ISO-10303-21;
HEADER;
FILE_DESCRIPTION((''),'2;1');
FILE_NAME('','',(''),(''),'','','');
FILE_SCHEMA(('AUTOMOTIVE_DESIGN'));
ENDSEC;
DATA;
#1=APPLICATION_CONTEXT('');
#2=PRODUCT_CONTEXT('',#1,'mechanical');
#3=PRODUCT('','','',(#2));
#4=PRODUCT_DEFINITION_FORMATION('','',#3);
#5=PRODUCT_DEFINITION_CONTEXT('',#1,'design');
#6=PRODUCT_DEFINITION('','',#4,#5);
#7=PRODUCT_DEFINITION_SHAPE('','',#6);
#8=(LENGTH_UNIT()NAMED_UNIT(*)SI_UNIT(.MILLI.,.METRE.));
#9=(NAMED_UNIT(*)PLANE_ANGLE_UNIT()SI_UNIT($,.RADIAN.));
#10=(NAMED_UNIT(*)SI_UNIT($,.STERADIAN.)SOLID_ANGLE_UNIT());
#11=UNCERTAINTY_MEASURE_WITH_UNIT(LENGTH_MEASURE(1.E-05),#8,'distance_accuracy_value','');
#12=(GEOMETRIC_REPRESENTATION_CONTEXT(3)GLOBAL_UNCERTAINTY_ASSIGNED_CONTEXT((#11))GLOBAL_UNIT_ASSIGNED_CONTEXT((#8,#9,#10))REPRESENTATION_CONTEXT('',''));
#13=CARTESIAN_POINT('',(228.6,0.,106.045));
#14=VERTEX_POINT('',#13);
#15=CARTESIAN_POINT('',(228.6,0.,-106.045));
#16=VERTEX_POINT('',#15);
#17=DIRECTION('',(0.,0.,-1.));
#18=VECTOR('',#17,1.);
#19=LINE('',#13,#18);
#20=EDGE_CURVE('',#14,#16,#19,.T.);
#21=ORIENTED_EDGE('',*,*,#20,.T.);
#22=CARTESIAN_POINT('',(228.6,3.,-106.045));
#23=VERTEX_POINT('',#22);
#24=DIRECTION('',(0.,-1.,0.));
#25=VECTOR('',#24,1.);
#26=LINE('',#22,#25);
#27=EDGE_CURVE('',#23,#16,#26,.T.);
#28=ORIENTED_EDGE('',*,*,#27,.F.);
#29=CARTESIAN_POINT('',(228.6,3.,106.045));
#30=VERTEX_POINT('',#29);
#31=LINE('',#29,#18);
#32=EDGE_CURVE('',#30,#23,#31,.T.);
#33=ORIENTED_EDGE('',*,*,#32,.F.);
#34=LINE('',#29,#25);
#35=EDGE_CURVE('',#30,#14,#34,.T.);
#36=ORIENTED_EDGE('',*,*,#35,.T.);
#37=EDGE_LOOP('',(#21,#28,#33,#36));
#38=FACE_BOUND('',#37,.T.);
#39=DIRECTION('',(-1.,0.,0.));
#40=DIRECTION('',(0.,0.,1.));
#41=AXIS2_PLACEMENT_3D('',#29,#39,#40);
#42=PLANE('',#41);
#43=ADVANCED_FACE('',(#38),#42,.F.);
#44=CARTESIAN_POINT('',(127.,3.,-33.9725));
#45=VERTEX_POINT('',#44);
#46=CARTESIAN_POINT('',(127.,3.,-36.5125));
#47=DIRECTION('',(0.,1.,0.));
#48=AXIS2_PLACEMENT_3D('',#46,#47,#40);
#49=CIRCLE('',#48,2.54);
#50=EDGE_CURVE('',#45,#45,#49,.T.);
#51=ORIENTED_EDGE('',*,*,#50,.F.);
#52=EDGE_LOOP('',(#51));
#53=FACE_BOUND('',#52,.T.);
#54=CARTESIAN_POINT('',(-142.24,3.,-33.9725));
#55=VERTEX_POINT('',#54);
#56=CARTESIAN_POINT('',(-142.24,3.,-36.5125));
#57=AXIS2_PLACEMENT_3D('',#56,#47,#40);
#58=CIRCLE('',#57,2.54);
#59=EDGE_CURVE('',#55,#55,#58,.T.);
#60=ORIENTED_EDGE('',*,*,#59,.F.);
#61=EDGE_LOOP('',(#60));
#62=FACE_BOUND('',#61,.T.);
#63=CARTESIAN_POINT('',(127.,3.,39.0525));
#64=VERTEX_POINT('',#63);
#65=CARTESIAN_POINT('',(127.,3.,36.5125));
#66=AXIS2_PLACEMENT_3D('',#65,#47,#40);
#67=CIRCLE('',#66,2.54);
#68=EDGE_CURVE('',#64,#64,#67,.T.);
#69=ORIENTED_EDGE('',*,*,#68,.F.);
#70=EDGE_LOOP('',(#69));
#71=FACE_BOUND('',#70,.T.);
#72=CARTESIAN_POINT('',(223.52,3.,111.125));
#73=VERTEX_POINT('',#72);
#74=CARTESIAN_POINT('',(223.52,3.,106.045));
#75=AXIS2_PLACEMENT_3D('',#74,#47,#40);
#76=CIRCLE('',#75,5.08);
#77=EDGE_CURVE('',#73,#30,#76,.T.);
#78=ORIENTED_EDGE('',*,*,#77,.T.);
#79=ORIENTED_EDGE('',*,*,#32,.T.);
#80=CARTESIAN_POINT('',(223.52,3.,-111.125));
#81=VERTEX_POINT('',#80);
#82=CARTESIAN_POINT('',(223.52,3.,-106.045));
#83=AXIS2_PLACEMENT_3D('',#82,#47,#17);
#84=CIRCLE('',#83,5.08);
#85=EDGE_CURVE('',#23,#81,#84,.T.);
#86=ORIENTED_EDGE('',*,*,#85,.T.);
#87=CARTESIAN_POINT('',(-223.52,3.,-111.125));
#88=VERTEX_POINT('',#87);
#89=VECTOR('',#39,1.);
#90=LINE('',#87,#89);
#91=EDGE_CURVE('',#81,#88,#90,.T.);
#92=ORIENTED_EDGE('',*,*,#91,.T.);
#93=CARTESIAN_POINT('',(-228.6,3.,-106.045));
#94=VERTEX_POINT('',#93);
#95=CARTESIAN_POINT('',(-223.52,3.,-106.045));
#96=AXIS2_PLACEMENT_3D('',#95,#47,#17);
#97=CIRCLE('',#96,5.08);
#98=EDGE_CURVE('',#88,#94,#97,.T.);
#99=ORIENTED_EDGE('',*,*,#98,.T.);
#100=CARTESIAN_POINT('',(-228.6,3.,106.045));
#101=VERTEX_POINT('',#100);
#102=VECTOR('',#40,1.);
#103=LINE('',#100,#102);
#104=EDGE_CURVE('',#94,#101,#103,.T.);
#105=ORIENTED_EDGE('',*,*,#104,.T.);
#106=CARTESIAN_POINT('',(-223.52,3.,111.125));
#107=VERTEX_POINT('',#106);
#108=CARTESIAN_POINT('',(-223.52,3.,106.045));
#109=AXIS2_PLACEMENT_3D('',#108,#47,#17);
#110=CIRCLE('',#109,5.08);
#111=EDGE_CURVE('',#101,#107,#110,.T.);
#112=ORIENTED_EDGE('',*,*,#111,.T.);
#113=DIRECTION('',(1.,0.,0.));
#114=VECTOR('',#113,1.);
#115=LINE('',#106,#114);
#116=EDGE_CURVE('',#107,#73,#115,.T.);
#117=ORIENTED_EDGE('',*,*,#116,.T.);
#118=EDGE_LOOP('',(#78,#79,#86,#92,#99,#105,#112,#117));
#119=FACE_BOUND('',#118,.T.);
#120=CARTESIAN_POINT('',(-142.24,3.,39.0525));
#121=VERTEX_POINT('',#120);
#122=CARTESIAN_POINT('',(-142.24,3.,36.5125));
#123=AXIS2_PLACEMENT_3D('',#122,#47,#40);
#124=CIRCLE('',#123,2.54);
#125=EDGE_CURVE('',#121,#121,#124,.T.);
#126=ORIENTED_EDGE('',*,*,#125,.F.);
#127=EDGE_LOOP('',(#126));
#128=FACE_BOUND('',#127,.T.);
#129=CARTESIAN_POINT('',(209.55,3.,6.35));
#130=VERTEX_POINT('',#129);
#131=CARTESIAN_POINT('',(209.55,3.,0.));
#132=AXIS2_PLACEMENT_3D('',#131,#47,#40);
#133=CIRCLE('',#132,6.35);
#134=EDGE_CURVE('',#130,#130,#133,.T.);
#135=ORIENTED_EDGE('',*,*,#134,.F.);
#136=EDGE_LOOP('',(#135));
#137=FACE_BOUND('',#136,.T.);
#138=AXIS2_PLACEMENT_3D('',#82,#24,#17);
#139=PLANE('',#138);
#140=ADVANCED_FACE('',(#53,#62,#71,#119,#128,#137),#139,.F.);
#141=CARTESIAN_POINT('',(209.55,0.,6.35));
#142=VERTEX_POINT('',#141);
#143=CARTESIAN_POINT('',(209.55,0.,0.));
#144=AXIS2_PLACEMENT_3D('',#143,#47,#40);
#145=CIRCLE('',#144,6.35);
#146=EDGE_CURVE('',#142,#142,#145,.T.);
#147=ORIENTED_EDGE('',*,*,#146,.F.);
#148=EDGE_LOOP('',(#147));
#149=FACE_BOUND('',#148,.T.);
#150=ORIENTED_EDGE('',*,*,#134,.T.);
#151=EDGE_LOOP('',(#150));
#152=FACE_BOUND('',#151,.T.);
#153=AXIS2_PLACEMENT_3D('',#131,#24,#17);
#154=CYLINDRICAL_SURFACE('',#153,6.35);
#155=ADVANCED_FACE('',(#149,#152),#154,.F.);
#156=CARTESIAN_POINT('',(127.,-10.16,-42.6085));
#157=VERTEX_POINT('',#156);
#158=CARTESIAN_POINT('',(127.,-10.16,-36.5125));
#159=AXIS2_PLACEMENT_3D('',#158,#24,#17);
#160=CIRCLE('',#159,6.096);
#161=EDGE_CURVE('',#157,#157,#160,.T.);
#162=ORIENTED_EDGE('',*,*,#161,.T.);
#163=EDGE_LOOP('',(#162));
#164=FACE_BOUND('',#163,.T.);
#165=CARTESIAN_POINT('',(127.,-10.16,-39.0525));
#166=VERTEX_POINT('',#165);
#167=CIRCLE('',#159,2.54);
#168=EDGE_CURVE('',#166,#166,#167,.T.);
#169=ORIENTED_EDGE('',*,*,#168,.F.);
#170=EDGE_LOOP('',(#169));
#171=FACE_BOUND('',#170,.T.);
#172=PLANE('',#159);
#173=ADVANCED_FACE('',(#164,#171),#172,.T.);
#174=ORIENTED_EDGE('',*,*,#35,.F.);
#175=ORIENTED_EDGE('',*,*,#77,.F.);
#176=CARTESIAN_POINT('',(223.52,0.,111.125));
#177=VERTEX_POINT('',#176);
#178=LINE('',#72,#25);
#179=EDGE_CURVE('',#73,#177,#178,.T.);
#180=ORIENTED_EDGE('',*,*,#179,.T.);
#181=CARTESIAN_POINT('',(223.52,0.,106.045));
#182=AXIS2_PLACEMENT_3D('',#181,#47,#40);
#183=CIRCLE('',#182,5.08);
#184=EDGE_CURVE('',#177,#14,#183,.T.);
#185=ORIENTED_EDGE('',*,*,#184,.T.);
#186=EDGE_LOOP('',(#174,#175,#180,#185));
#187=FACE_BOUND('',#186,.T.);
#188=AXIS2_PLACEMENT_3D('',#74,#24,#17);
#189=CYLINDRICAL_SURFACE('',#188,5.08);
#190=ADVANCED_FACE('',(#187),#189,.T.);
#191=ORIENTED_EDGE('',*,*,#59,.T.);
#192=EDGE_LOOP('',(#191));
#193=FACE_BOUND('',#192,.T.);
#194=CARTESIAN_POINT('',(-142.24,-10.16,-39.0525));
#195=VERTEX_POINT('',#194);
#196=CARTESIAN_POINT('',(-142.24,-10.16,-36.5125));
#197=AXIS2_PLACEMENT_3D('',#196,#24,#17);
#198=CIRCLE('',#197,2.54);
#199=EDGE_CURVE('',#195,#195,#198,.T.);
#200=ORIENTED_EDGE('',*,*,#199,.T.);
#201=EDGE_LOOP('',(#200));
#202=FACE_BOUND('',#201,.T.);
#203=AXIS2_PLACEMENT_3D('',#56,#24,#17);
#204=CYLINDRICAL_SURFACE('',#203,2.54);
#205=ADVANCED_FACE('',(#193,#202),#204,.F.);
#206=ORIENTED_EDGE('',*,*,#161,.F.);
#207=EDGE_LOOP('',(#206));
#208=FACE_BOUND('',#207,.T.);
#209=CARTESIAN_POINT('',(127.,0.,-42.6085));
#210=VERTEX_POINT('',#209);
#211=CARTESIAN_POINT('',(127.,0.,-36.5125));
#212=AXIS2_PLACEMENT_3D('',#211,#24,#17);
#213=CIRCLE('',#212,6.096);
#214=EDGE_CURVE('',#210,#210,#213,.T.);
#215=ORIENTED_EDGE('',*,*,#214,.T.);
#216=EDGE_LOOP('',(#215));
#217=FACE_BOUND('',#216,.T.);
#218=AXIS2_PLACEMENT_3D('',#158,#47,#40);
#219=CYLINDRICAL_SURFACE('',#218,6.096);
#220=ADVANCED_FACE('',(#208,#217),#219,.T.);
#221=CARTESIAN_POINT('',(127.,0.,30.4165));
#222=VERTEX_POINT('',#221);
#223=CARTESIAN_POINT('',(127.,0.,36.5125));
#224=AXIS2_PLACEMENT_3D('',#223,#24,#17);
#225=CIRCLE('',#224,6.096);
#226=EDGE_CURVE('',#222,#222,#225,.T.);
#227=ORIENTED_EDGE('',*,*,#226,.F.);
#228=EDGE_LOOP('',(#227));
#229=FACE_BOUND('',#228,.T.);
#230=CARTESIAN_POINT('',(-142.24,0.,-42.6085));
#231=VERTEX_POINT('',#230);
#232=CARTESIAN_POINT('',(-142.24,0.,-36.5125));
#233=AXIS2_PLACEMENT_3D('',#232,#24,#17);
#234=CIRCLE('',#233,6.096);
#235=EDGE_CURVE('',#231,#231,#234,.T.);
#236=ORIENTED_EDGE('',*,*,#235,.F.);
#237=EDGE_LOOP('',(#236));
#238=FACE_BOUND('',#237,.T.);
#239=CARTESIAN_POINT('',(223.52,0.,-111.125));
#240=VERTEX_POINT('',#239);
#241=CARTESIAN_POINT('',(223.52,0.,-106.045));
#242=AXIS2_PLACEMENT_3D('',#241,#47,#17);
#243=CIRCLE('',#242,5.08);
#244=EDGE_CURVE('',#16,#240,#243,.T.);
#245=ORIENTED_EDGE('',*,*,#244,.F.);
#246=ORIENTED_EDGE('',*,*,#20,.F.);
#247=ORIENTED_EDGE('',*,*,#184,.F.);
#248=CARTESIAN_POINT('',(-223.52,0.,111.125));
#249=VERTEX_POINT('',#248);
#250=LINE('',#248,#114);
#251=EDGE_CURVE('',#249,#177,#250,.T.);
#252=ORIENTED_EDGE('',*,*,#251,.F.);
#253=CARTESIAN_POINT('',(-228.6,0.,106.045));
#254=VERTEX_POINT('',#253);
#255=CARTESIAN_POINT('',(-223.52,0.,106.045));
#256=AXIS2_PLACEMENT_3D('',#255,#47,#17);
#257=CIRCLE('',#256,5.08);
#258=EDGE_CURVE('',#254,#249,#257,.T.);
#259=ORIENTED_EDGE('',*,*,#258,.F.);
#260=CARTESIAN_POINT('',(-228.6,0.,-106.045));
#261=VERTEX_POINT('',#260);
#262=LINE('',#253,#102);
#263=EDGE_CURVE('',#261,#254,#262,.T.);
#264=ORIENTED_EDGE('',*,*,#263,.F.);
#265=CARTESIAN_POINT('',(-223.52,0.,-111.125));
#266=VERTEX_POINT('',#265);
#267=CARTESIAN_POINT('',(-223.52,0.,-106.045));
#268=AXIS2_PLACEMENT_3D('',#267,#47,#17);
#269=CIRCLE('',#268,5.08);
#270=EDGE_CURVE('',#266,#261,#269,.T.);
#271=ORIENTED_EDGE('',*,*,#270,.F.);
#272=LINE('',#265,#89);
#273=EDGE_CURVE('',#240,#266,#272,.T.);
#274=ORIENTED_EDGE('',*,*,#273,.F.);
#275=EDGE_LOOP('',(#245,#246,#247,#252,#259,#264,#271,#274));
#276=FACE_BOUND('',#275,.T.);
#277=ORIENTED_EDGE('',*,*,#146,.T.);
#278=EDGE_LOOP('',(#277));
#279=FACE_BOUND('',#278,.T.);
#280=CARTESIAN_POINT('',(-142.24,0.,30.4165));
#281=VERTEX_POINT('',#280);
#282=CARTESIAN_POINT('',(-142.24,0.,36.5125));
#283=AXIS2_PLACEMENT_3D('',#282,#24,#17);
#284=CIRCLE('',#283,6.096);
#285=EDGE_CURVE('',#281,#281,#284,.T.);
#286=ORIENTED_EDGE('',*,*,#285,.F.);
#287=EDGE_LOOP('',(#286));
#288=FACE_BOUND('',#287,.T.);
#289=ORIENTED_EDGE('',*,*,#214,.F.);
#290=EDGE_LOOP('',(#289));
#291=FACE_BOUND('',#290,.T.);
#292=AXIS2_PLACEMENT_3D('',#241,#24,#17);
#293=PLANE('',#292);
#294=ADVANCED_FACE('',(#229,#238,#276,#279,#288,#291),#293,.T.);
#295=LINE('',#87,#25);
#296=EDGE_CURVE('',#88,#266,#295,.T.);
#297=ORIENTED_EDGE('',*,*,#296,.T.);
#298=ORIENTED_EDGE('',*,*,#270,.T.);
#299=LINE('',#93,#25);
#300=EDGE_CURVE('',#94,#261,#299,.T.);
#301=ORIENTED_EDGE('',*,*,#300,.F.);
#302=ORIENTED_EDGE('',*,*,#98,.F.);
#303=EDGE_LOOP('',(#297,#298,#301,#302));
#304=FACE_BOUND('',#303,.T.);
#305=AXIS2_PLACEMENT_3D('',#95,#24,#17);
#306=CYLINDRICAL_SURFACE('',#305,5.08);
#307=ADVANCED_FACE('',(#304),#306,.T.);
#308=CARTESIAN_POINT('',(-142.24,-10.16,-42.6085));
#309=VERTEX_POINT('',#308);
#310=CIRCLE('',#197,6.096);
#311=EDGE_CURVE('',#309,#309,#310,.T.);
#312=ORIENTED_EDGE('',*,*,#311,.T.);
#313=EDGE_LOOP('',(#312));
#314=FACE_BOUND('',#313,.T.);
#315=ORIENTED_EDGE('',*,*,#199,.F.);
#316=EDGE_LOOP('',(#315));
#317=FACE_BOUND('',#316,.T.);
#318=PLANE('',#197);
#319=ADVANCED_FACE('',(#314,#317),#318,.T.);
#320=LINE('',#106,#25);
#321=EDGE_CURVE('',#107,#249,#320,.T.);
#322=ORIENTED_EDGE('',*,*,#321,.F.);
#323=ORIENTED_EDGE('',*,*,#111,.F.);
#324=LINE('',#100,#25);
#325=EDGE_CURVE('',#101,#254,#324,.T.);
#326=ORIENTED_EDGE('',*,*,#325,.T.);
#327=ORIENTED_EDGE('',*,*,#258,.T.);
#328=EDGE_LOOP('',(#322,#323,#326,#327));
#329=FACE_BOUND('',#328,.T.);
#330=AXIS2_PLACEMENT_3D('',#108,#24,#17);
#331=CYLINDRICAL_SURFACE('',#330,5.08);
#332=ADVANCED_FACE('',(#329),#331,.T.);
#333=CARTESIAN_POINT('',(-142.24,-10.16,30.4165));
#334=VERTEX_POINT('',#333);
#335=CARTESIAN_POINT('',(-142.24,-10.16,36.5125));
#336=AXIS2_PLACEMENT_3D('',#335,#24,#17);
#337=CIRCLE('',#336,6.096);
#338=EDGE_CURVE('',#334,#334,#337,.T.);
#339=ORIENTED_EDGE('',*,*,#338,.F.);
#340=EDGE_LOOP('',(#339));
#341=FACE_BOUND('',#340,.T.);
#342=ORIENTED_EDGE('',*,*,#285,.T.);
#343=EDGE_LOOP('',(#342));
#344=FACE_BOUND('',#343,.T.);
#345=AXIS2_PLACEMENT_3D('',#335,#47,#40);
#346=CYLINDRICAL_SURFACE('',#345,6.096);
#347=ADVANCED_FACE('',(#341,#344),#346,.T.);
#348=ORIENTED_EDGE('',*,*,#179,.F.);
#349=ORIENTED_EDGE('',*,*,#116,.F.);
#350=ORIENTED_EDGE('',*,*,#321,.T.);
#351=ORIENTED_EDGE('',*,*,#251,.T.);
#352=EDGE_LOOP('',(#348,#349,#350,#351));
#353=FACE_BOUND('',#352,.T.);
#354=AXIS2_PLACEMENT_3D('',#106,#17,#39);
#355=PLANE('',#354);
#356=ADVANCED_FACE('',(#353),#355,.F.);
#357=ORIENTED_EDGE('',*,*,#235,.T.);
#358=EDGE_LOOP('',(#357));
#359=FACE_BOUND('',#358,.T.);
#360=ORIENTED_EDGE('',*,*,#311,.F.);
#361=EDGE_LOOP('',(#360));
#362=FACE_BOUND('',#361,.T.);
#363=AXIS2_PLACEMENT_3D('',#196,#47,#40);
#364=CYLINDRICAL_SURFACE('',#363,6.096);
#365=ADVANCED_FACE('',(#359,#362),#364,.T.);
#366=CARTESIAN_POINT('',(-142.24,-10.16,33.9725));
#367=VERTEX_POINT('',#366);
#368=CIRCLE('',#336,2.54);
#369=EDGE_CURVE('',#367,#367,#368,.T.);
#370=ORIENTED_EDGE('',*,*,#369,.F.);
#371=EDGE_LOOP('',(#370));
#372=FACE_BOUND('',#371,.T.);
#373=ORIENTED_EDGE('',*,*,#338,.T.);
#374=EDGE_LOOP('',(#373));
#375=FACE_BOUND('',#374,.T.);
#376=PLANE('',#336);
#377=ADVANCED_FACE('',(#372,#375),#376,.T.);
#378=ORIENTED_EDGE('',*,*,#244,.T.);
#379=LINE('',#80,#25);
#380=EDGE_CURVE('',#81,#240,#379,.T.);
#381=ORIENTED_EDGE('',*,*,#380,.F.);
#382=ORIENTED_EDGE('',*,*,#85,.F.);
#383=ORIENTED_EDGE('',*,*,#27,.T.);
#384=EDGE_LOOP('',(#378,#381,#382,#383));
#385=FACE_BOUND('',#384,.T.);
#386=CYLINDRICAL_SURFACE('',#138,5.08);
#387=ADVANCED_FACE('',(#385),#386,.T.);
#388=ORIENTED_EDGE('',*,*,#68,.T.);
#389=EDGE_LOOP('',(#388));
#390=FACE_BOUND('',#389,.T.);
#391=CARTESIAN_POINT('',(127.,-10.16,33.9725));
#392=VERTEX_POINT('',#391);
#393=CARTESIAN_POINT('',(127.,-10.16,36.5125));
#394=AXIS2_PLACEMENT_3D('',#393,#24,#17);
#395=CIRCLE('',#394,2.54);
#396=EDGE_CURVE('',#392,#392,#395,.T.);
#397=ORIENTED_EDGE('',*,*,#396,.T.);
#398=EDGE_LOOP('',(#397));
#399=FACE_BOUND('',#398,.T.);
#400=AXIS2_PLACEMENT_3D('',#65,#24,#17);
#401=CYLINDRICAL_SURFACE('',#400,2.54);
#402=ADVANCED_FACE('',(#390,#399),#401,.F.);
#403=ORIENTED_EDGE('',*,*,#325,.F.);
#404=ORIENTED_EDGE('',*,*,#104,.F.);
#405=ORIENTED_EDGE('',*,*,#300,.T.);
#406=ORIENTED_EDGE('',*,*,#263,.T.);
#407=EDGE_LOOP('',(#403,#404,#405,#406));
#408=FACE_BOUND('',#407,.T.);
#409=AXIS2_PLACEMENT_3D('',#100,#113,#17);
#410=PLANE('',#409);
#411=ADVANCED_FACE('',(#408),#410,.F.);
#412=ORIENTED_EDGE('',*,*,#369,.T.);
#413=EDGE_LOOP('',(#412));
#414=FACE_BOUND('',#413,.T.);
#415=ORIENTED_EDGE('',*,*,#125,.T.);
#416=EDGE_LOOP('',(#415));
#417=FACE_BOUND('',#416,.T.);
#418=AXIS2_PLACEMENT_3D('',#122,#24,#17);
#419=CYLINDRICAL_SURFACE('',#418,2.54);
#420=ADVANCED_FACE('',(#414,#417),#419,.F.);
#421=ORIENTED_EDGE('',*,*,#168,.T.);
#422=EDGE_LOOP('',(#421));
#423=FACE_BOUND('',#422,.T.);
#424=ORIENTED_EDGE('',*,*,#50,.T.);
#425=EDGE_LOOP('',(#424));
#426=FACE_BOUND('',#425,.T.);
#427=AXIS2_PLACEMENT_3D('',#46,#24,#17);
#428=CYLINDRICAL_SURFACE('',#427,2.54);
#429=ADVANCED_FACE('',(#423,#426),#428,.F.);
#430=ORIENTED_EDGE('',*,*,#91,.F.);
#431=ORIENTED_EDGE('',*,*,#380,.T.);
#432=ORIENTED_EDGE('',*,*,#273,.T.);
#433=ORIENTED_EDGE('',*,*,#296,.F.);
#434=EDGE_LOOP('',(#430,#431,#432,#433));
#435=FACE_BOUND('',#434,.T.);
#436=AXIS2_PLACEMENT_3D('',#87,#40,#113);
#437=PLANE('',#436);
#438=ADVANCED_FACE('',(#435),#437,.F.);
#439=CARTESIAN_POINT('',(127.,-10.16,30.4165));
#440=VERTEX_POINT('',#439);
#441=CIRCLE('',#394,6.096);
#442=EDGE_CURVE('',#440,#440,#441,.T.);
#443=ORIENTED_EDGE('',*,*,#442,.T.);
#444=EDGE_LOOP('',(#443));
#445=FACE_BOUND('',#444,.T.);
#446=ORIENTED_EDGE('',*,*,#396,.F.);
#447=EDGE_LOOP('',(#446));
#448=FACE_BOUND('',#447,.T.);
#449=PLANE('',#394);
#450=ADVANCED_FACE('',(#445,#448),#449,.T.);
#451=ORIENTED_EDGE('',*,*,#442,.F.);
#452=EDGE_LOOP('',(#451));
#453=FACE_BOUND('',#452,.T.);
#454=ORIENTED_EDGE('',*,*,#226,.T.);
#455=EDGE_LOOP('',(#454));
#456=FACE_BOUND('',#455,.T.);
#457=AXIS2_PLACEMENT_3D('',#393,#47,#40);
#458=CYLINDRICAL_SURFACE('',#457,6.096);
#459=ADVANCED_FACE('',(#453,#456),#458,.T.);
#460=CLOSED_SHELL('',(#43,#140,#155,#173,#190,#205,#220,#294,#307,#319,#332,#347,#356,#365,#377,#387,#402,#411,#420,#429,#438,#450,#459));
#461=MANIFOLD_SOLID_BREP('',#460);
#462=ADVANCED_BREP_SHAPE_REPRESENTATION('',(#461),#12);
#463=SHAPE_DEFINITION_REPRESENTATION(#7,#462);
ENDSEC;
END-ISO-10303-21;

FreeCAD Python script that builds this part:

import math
import FreeCAD as App
import Part
import Sketcher

V = App.Vector
Q = App.Units.Quantity

doc = App.newDocument("Part")
body = doc.addObject("PartDesign::Body", "Body")

# Sketch on XZ plane
sketch1 = body.newObject("Sketcher::SketchObject", "Sketch")
sketch1.AttachmentSupport = (doc.getObject("XZ_Plane"), [""])
sketch1.MapMode = "FlatFace"
sketch1.addGeometry([
    Part.LineSegment(V(-223.5, 111.1, 0), V(223.5, 111.1, 0)),  # 0
    Part.ArcOfCircle(Part.Circle(V(223.5, 106, 0), V(0, 0, 1), 5.1), math.radians(0), math.radians(90)),  # 1
    Part.LineSegment(V(228.6, 106, 0), V(228.6, -106, 0)),  # 2
    Part.ArcOfCircle(Part.Circle(V(223.5, -106, 0), V(0, 0, 1), 5.1), math.radians(-90), math.radians(0)),  # 3
    Part.LineSegment(V(223.5, -111.1, 0), V(-223.5, -111.1, 0)),  # 4
    Part.ArcOfCircle(Part.Circle(V(-223.5, -106, 0), V(0, 0, 1), 5.1), math.radians(-180), math.radians(-90)),  # 5
    Part.LineSegment(V(-228.6, -106, 0), V(-228.6, 106, 0)),  # 6
    Part.ArcOfCircle(Part.Circle(V(-223.5, 106, 0), V(0, 0, 1), 5.1), math.radians(90), math.radians(180)),  # 7
    Part.Circle(V(-142.2, 36.5, 0), V(0, 0, 1), 2.5),  # 8
    Part.Circle(V(127, 36.5, 0), V(0, 0, 1), 2.5),  # 9
    Part.Circle(V(-142.2, -36.5, 0), V(0, 0, 1), 2.5),  # 10
    Part.Circle(V(209.6, 0, 0), V(0, 0, 1), 6.3),  # 11
    Part.Circle(V(127, -36.5, 0), V(0, 0, 1), 2.5),  # 12
], False)
sketch1.addConstraint([
    Sketcher.Constraint("Tangent", 0, 2, 1, 2),
    Sketcher.Constraint("Tangent", 1, 1, 2, 1),
    Sketcher.Constraint("Tangent", 2, 2, 3, 2),
    Sketcher.Constraint("Tangent", 3, 1, 4, 1),
    Sketcher.Constraint("Tangent", 4, 2, 5, 2),
    Sketcher.Constraint("Tangent", 5, 1, 6, 1),
    Sketcher.Constraint("Tangent", 6, 2, 7, 2),
    Sketcher.Constraint("Tangent", 7, 1, 0, 1),
    Sketcher.Constraint("Horizontal", 0),
    Sketcher.Constraint("Vertical", 2),
    Sketcher.Constraint("Horizontal", 4),
    Sketcher.Constraint("Vertical", 6),
    Sketcher.Constraint("Equal", 1, 3),
    Sketcher.Constraint("Equal", 3, 5),
    Sketcher.Constraint("Equal", 5, 7),
    Sketcher.Constraint("Equal", 8, 9),
    Sketcher.Constraint("Equal", 9, 10),
    Sketcher.Constraint("Equal", 10, 12),
    Sketcher.Constraint("Symmetric", 1, 3, 5, 3, -1, 1),
    Sketcher.Constraint("Symmetric", 8, 3, 10, 3, -1),
    Sketcher.Constraint("Symmetric", 9, 3, 12, 3, -1),
    Sketcher.Constraint("PointOnObject", 11, 3, -1),
    Sketcher.Constraint("Horizontal", 8, 3, 9, 3),
    Sketcher.Constraint("Diameter", 8, Q("0.2 in")),
    Sketcher.Constraint("Diameter", 11, Q("0.5 in")),
    Sketcher.Constraint("Radius", 1, Q("0.2 in")),
    Sketcher.Constraint("DistanceX", 0, 1, 0, 2, Q("17.6 in")),
    Sketcher.Constraint("DistanceX", -1, 1, 9, 3, Q("5 in")),
    Sketcher.Constraint("DistanceY", 2, 2, 2, 1, Q("8.35 in")),
    Sketcher.Constraint("DistanceX", 8, 3, -1, 1, Q("5.6 in")),
    Sketcher.Constraint("DistanceX", -1, 1, 11, 3, Q("8.25 in")),
    Sketcher.Constraint("DistanceY", -1, 1, 8, 3, Q("1.4375 in")),
])
pad1 = body.newObject("PartDesign::Pad", "Pad")
pad1.Profile = sketch1
pad1.Length = 3
pad1.Reversed = True

# Sketch on XZ plane
sketch2 = body.newObject("Sketcher::SketchObject", "Sketch001")
sketch2.AttachmentSupport = (doc.getObject("XZ_Plane"), [""])
sketch2.MapMode = "FlatFace"
sketch2.AttachmentOffset = App.Placement(V(0, 0, 0.4 * 25.4), App.Rotation())
sketch2.addGeometry([
    Part.Circle(V(127, 36.5, 0), V(0, 0, 1), 6.1),  # 0
    Part.Circle(V(127, 36.5, 0), V(0, 0, 1), 2.5),  # 1
    Part.Circle(V(127, -36.5, 0), V(0, 0, 1), 6.1),  # 2
    Part.Circle(V(127, -36.5, 0), V(0, 0, 1), 2.5),  # 3
    Part.Circle(V(-142.2, -36.5, 0), V(0, 0, 1), 6.1),  # 4
    Part.Circle(V(-142.2, -36.5, 0), V(0, 0, 1), 2.5),  # 5
    Part.Circle(V(-142.2, 36.5, 0), V(0, 0, 1), 6.1),  # 6
    Part.Circle(V(-142.2, 36.5, 0), V(0, 0, 1), 2.5),  # 7
], False)
sketch2.addConstraint([
    Sketcher.Constraint("Coincident", 1, 3, 0, 3),
    Sketcher.Constraint("Coincident", 3, 3, 2, 3),
    Sketcher.Constraint("Coincident", 5, 3, 4, 3),
    Sketcher.Constraint("Coincident", 7, 3, 6, 3),
    Sketcher.Constraint("Equal", 0, 2),
    Sketcher.Constraint("Equal", 1, 3),
    Sketcher.Constraint("Equal", 2, 4),
    Sketcher.Constraint("Equal", 3, 5),
    Sketcher.Constraint("Equal", 4, 6),
    Sketcher.Constraint("Equal", 5, 7),
    Sketcher.Constraint("Symmetric", 0, 3, 2, 3, -1),
    Sketcher.Constraint("Symmetric", 4, 3, 6, 3, -1),
    Sketcher.Constraint("Horizontal", 3, 3, 4, 3),
    Sketcher.Constraint("Diameter", 1, Q("0.2 in")),
    Sketcher.Constraint("Diameter", 0, Q("0.48 in")),
    Sketcher.Constraint("DistanceX", -1, 1, 0, 3, Q("5 in")),
    Sketcher.Constraint("DistanceX", 4, 3, -1, 1, Q("5.6 in")),
    Sketcher.Constraint("DistanceY", -1, 1, 0, 3, Q("1.4375 in")),
])
pad2 = body.newObject("PartDesign::Pad", "Pad001")
pad2.Profile = sketch2
pad2.Length = Q("0.4 in")
pad2.Reversed = True

doc.recompute()
